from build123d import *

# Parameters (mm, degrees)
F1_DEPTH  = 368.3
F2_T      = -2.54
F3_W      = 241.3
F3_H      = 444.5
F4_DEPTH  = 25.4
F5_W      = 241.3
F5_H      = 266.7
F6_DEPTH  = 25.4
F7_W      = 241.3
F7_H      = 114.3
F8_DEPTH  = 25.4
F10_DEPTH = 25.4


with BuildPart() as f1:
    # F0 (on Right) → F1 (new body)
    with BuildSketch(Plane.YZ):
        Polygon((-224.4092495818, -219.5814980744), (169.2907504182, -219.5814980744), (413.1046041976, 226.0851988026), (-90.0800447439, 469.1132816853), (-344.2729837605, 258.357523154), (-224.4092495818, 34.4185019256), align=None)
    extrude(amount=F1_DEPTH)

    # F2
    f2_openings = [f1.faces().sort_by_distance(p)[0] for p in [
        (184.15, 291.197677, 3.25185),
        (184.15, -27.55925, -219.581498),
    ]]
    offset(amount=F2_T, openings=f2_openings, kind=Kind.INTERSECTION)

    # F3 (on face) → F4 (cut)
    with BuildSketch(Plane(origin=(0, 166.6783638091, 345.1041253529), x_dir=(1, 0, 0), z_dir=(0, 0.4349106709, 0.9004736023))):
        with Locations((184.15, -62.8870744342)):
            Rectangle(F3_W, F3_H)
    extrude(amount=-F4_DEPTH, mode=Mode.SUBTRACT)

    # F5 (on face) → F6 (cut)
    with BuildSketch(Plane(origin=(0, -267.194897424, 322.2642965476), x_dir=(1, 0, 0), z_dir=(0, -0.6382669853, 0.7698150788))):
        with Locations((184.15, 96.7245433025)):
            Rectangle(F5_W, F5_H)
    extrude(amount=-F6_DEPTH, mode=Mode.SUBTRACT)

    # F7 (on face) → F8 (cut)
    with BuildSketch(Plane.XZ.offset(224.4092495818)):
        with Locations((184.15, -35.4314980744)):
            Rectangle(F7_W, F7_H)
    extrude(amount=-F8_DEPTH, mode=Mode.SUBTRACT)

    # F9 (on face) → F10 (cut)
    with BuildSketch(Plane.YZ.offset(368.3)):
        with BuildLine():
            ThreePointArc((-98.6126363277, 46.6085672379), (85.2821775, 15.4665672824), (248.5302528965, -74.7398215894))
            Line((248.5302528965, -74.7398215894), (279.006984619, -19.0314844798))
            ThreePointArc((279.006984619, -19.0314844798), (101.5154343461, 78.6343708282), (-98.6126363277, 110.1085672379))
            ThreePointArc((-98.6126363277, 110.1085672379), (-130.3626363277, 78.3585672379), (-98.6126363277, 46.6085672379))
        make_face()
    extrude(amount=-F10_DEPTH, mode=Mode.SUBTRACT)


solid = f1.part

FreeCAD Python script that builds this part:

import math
import FreeCAD as App
import Part
import Sketcher

V = App.Vector
Q = App.Units.Quantity


def faces_at(feature, points):
    """Names of the faces that lie closest to the given points."""
    faces = feature.Shape.Faces
    near = lambda p: min(range(len(faces)), key=lambda i: faces[i].distToShape(Part.Vertex(*p))[0])
    return sorted({f"Face{near(p) + 1}" for p in points})


def add_polygon(sketch, points):
    """Adds a closed chain of lines whose ends are joined by coincident constraints."""
    first, n = sketch.GeometryCount, len(points)
    for a, b in zip(points, points[1:] + points[:1]):
        sketch.addGeometry(Part.LineSegment(App.Vector(*a, 0), App.Vector(*b, 0)), False)
    for i in range(n):
        sketch.addConstraint(Sketcher.Constraint("Coincident", first + i, 2, first + (i + 1) % n, 1))

doc = App.newDocument("Part")
body = doc.addObject("PartDesign::Body", "Body")

sketch1 = body.newObject("Sketcher::SketchObject", "Sketch")
sketch1.AttachmentSupport = (doc.getObject("YZ_Plane"), [""])
sketch1.MapMode = "FlatFace"
add_polygon(sketch1, [(-224, -220), (169, -220), (413, 226), (-90, 469), (-344, 258), (-224, 34)])
sketch1.addConstraint(Sketcher.Constraint("Horizontal", 0))
sketch1.addConstraint(Sketcher.Constraint("Vertical", 5))
sketch1.addConstraint(Sketcher.Constraint("DistanceY", 5, 2, 5, 1, Q("10 in")))
sketch1.addConstraint(Sketcher.Constraint("Distance", 1, Q("20 in")))
sketch1.addConstraint(Sketcher.Constraint("Distance", 2, Q("22 in")))
sketch1.addConstraint(Sketcher.Constraint("Distance", 3, Q("13 in")))
sketch1.addConstraint(Sketcher.Constraint("Distance", 4, Q("10 in")))
sketch1.addConstraint(Sketcher.Constraint("DistanceX", 0, 1, 0, 2, Q("15.5 in")))
sketch1.addConstraint(Sketcher.Constraint("DistanceY", 0, 2, -1, 1, 219.581498))
sketch1.addConstraint(Sketcher.Constraint("DistanceY", -1, 1, 1, 2, 226.085199))
sketch1.addConstraint(Sketcher.Constraint("DistanceX", -1, 1, 0, 2, 169.29075))
sketch1.addConstraint(Sketcher.Constraint("DistanceY", -1, 1, 2, 2, 469.113282))
pad1 = body.newObject("PartDesign::Pad", "Pad")
pad1.Profile = sketch1
pad1.Length = Q("14.5 in")
doc.recompute()

thickness = body.newObject("PartDesign::Thickness", "Thickness")
thickness.Base = (pad1, faces_at(pad1, [(184.15, 291.198, 3.252), (184.15, -27.559, -219.581)]))
thickness.Value = Q("0.1 in")
thickness.Reversed = True
thickness.Join = "Intersection"

sketch2 = body.newObject("Sketcher::SketchObject", "Sketch001")
sketch2.Placement = App.Placement(V(0, 166.678364, 345.104125), App.Rotation(V(1, 0, 0), V(0, 0.900473602, -0.434910671), V(0, 0.434910671, 0.900473602), "ZXY"))
add_polygon(sketch2, [(64, 159), (64, -285), (305, -285), (305, 159)])
sketch2.addConstraint(Sketcher.Constraint("Vertical", 0))
sketch2.addConstraint(Sketcher.Constraint("Horizontal", 1))
sketch2.addConstraint(Sketcher.Constraint("Vertical", 2))
sketch2.addConstraint(Sketcher.Constraint("Horizontal", 3))
sketch2.addConstraint(Sketcher.Constraint("DistanceX", 1, 1, 1, 2, Q("9.5 in")))
sketch2.addConstraint(Sketcher.Constraint("DistanceY", 0, 2, 0, 1, Q("17.5 in")))
sketch2.addConstraint(Sketcher.Constraint("DistanceX", -1, 1, 1, 2, Q("12 in")))
sketch2.addConstraint(Sketcher.Constraint("DistanceY", 0, 2, -1, 1, 285.137074))
pocket1 = body.newObject("PartDesign::Pocket", "Pocket")
pocket1.Profile = sketch2
pocket1.Length = Q("1 in")

sketch3 = body.newObject("Sketcher::SketchObject", "Sketch002")
sketch3.Placement = App.Placement(V(0, -267.194897, 322.264297), App.Rotation(V(1, 0, 0), V(0, 0.769815079, 0.638266985), V(0, -0.638266985, 0.769815079), "ZXY"))
add_polygon(sketch3, [(64, 230), (64, -37), (305, -37), (305, 230)])
sketch3.addConstraint(Sketcher.Constraint("Vertical", 0))
sketch3.addConstraint(Sketcher.Constraint("Horizontal", 1))
sketch3.addConstraint(Sketcher.Constraint("Vertical", 2))
sketch3.addConstraint(Sketcher.Constraint("Horizontal", 3))
sketch3.addConstraint(Sketcher.Constraint("DistanceX", 1, 1, 1, 2, Q("9.5 in")))
sketch3.addConstraint(Sketcher.Constraint("DistanceY", 0, 2, 0, 1, Q("10.5 in")))
sketch3.addConstraint(Sketcher.Constraint("DistanceX", -1, 1, 1, 2, Q("12 in")))
sketch3.addConstraint(Sketcher.Constraint("DistanceY", 0, 2, -1, 1, 36.625457))
pocket2 = body.newObject("PartDesign::Pocket", "Pocket001")
pocket2.Profile = sketch3
pocket2.Length = Q("1 in")

sketch4 = body.newObject("Sketcher::SketchObject", "Sketch003")
sketch4.AttachmentSupport = (doc.getObject("XZ_Plane"), [""])
sketch4.MapMode = "FlatFace"
sketch4.AttachmentOffset = App.Placement(V(0, 0, 224.40925), App.Rotation())
add_polygon(sketch4, [(64, 22), (64, -93), (305, -93), (305, 22)])
sketch4.addConstraint(Sketcher.Constraint("Vertical", 0))
sketch4.addConstraint(Sketcher.Constraint("Horizontal", 1))
sketch4.addConstraint(Sketcher.Constraint("Vertical", 2))
sketch4.addConstraint(Sketcher.Constraint("Horizontal", 3))
sketch4.addConstraint(Sketcher.Constraint("DistanceX", 1, 1, 1, 2, Q("9.5 in")))
sketch4.addConstraint(Sketcher.Constraint("DistanceY", 0, 2, 0, 1, Q("4.5 in")))
sketch4.addConstraint(Sketcher.Constraint("DistanceX", -1, 1, 1, 2, Q("12 in")))
sketch4.addConstraint(Sketcher.Constraint("DistanceY", 0, 2, -1, 1, 92.581498))
pocket3 = body.newObject("PartDesign::Pocket", "Pocket002")
pocket3.Profile = sketch4
pocket3.Length = Q("1 in")

sketch5 = body.newObject("Sketcher::SketchObject", "Sketch004")
sketch5.AttachmentSupport = (doc.getObject("YZ_Plane"), [""])
sketch5.MapMode = "FlatFace"
sketch5.AttachmentOffset = App.Placement(V(0, 0, 14.5 * 25.4), App.Rotation())
sketch5.addGeometry(Part.ArcOfCircle(Part.Circle(V(-98, -509, 0), V(0, 0, 1), 556), math.radians(51), math.radians(90)), False)
sketch5.addGeometry(Part.LineSegment(V(249, -75, 0), V(279, -19, 0)), False)
sketch5.addGeometry(Part.ArcOfCircle(Part.Circle(V(-88, -476, 0), V(0, 0, 1), 587), math.radians(51), math.radians(91)), False)
sketch5.addGeometry(Part.ArcOfCircle(Part.Circle(V(-99, 78, 0), V(0, 0, 1), 32), math.radians(90), math.radians(270)), False)
sketch5.addConstraint(Sketcher.Constraint("Coincident", 0, 1, 1, 1))
sketch5.addConstraint(Sketcher.Constraint("Coincident", 1, 2, 2, 1))
sketch5.addConstraint(Sketcher.Constraint("Coincident", 2, 2, 3, 1))
sketch5.addConstraint(Sketcher.Constraint("Coincident", 3, 2, 0, 2))
sketch5.addConstraint(Sketcher.Constraint("Vertical", 3, 3, 2, 2))
sketch5.addConstraint(Sketcher.Constraint("Vertical", 2, 2, 3, 2))
sketch5.addConstraint(Sketcher.Constraint("Radius", 3, Q("1.25 in")))
sketch5.addConstraint(Sketcher.Constraint("Distance", 1, Q("2.5 in")))
sketch5.addConstraint(Sketcher.Constraint("Radius", 0, 555.979509))
sketch5.addConstraint(Sketcher.Constraint("Radius", 2, 586.68684))
sketch5.addConstraint(Sketcher.Constraint("DistanceY", 2, 3, -1, 1, 476.488118))
sketch5.addConstraint(Sketcher.Constraint("DistanceX", 3, 3, 2, 3, 10.284792))
sketch5.addConstraint(Sketcher.Constraint("DistanceX", 3, 3, 0, 3, 0.430978))
sketch5.addConstraint(Sketcher.Constraint("DistanceX", 3, 3, 1, 2, 377.619621))
sketch5.addConstraint(Sketcher.Constraint("DistanceX", 0, 3, -1, 1, 98.181658))
pocket4 = body.newObject("PartDesign::Pocket", "Pocket003")
pocket4.Profile = sketch5
pocket4.Length = Q("1 in")

doc.recompute()
